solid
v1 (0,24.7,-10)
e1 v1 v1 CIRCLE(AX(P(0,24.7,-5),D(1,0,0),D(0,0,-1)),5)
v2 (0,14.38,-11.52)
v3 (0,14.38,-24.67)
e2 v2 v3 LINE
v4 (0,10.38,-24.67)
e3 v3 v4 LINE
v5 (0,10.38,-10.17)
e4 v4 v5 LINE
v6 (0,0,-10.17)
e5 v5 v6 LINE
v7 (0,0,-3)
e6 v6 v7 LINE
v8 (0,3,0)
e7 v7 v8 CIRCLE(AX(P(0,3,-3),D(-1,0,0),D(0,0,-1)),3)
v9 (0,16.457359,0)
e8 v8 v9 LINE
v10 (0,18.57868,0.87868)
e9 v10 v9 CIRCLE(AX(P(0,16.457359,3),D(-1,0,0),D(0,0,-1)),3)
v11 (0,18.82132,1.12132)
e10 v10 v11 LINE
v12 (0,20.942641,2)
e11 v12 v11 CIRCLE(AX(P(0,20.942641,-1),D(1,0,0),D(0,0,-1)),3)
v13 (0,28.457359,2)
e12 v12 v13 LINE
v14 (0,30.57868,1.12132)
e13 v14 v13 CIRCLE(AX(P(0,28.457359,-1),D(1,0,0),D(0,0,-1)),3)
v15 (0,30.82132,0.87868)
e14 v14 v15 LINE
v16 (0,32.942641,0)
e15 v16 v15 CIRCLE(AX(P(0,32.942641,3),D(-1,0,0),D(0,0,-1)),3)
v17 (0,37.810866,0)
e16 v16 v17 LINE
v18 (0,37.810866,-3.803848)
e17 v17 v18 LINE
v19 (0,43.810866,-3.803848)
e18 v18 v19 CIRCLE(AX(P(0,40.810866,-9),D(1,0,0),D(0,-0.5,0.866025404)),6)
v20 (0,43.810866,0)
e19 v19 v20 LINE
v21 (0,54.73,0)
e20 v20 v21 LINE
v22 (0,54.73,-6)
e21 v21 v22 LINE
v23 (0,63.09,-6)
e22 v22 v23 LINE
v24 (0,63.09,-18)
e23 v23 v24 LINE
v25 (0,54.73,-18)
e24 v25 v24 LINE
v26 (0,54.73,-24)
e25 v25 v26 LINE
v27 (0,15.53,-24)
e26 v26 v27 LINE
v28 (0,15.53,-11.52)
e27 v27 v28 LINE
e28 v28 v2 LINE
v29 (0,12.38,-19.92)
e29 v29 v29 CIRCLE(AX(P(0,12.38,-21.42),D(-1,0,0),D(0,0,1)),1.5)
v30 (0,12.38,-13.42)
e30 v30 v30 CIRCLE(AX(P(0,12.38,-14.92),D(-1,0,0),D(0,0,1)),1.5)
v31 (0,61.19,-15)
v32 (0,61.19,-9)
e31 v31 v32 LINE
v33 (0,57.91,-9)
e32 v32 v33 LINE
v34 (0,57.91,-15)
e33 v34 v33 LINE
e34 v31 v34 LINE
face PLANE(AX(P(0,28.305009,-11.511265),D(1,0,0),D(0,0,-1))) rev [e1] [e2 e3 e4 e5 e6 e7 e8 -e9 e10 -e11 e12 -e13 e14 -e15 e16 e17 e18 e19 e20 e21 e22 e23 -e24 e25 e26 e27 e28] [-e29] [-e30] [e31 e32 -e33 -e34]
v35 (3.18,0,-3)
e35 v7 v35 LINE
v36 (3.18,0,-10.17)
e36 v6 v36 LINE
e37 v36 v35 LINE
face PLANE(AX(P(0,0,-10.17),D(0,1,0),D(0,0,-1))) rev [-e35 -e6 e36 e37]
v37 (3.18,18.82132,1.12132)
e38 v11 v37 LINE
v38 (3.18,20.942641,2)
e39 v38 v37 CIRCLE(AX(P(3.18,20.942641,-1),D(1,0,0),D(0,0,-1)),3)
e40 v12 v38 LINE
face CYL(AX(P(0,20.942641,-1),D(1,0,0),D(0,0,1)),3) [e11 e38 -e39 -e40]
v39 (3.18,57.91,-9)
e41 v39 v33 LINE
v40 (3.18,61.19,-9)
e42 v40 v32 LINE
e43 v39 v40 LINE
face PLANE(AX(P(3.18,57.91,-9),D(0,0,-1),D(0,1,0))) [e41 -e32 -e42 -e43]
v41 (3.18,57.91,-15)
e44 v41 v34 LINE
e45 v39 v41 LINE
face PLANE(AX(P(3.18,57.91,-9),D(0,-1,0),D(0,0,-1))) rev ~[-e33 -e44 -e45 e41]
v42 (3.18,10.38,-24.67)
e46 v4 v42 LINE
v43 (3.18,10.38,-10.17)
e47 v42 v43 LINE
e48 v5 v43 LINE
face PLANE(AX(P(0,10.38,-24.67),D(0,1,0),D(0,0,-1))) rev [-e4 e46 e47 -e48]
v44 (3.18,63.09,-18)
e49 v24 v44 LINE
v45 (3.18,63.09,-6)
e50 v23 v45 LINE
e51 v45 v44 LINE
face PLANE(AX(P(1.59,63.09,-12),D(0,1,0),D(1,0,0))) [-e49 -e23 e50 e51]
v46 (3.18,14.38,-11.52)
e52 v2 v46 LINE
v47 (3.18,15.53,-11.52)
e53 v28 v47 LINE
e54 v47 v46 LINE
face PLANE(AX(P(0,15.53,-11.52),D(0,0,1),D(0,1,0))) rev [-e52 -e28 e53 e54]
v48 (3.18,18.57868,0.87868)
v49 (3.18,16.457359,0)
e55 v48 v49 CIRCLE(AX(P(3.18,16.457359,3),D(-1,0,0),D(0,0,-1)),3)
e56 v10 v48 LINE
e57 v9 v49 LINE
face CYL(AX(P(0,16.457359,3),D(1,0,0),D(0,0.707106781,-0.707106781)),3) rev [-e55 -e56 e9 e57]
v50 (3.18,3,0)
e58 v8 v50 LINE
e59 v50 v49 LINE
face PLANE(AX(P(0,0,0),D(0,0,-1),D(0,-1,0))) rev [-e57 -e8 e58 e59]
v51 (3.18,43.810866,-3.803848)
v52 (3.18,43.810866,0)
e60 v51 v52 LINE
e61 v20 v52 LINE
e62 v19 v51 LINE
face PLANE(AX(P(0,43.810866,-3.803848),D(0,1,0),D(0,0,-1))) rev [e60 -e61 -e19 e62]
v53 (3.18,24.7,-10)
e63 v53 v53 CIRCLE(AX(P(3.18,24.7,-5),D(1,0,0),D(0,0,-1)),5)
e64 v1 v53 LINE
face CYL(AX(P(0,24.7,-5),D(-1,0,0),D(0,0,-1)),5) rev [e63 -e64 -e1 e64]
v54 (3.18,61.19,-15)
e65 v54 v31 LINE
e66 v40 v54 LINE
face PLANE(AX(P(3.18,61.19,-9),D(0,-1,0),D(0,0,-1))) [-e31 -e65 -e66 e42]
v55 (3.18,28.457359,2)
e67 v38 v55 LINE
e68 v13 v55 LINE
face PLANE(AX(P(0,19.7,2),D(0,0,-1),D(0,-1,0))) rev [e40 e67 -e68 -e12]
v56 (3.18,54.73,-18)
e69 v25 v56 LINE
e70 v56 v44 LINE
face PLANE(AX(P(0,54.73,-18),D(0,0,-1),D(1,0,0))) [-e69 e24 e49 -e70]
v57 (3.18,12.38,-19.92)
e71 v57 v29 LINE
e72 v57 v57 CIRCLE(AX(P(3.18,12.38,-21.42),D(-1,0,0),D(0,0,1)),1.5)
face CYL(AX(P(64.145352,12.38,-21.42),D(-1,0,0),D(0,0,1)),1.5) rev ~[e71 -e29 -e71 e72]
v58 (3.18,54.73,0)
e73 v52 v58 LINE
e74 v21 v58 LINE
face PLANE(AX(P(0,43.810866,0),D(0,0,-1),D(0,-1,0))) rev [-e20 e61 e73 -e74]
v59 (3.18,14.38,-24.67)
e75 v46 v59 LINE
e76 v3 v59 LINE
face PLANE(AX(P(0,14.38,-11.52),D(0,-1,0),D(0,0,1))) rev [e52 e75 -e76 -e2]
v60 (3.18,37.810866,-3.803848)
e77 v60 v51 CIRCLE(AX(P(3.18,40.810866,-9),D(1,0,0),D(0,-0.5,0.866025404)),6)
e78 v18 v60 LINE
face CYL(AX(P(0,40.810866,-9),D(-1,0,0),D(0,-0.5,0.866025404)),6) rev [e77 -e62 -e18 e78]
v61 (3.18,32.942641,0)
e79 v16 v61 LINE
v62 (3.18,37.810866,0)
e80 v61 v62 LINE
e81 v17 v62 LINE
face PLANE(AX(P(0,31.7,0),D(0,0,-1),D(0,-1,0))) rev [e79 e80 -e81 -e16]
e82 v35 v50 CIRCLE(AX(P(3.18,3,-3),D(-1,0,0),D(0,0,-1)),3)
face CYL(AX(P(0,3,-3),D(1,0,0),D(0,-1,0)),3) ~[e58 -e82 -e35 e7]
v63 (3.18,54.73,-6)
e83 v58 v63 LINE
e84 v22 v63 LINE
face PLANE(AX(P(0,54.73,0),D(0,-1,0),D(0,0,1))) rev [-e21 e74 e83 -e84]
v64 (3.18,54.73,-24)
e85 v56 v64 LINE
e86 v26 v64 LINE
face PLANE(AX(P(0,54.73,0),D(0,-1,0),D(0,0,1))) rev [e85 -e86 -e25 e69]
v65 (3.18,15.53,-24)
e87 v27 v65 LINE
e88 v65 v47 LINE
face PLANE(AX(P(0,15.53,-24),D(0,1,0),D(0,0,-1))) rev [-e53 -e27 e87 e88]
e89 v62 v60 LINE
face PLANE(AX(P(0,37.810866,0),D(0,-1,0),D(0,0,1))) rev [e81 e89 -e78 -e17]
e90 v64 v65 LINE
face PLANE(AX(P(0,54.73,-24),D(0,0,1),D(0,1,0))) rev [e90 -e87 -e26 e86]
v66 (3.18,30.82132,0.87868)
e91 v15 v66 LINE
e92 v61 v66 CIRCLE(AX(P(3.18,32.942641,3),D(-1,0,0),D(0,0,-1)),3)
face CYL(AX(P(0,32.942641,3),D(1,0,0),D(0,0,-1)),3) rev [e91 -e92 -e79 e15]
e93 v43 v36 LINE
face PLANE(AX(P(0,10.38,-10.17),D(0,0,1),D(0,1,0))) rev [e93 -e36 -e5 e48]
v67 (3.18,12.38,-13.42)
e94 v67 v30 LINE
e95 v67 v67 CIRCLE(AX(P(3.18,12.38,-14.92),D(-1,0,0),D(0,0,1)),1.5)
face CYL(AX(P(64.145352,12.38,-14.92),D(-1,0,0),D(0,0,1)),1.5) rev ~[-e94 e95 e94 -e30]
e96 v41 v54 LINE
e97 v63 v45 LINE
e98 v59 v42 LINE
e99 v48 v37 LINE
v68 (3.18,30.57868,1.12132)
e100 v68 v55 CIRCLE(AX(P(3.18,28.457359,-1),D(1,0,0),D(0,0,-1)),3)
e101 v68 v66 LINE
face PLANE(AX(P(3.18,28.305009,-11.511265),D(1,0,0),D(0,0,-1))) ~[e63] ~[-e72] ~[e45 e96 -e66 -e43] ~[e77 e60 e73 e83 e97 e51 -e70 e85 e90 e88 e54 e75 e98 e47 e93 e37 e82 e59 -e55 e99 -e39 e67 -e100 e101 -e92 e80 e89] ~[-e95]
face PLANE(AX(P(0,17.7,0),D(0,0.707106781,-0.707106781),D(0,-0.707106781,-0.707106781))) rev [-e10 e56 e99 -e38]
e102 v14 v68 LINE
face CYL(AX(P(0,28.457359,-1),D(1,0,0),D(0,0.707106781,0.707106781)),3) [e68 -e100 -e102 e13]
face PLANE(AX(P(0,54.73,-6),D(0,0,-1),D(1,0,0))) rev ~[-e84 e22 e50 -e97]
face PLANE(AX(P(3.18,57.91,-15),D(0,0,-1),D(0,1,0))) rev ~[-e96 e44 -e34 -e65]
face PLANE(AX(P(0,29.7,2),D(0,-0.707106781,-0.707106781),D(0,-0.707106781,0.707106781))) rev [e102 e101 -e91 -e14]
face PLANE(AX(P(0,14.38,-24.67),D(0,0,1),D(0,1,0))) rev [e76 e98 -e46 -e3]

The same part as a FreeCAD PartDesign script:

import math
import FreeCAD as App
import Part
import Sketcher


def edges_at(feature, points):
    """Names of the edges that pass closest to the given points."""
    edges = feature.Shape.Edges
    near = lambda p: min(range(len(edges)), key=lambda i: edges[i].distToShape(Part.Vertex(*p))[0])
    return sorted({f"Edge{near(p) + 1}" for p in points})

doc = App.newDocument("Part")
body = doc.addObject("PartDesign::Body", "Body")

# Sketch on YZ plane
sketch1 = body.newObject("Sketcher::SketchObject", "Sketch")
sketch1.AttachmentSupport = (doc.getObject("YZ_Plane"), [""])
sketch1.MapMode = "FlatFace"
sketch1.addGeometry([
    Part.LineSegment(App.Vector(54.73, -24, 0), App.Vector(54.73, 0, 0)),  # 0
    Part.LineSegment(App.Vector(54.73, 0, 0), App.Vector(43.810866, 0, 0)),  # 1
    Part.LineSegment(App.Vector(43.810866, 0, 0), App.Vector(43.810866, -3.803848, 0)),  # 2
    Part.ArcOfCircle(Part.Circle(App.Vector(40.810866, -9, 0), App.Vector(0, 0, 1), 6), math.radians(120), math.radians(420)),  # 3
    Part.LineSegment(App.Vector(37.810866, -3.803848, 0), App.Vector(37.810866, 0, 0)),  # 4
    Part.LineSegment(App.Vector(37.810866, 0, 0), App.Vector(31.7, 0, 0)),  # 5
    Part.LineSegment(App.Vector(31.7, 0, 0), App.Vector(29.7, 2, 0)),  # 6
    Part.LineSegment(App.Vector(29.7, 2, 0), App.Vector(19.7, 2, 0)),  # 7
    Part.LineSegment(App.Vector(19.7, 2, 0), App.Vector(17.7, 0, 0)),  # 8
    Part.LineSegment(App.Vector(17.7, 0, 0), App.Vector(0, 0, 0)),  # 9
    Part.LineSegment(App.Vector(0, 0, 0), App.Vector(0, -10.17, 0)),  # 10
    Part.LineSegment(App.Vector(0, -10.17, 0), App.Vector(10.38, -10.17, 0)),  # 11
    Part.LineSegment(App.Vector(10.38, -10.17, 0), App.Vector(10.38, -24.67, 0)),  # 12
    Part.LineSegment(App.Vector(10.38, -24.67, 0), App.Vector(14.38, -24.67, 0)),  # 13
    Part.LineSegment(App.Vector(14.38, -24.67, 0), App.Vector(14.38, -11.52, 0)),  # 14
    Part.LineSegment(App.Vector(14.38, -11.52, 0), App.Vector(15.53, -11.52, 0)),  # 15
    Part.LineSegment(App.Vector(15.53, -11.52, 0), App.Vector(15.53, -24, 0)),  # 16
    Part.LineSegment(App.Vector(15.53, -24, 0), App.Vector(54.73, -24, 0)),  # 17
], False)
sketch1.addConstraint([
    Sketcher.Constraint("Coincident", 0, 2, 1, 1),
    Sketcher.Constraint("Coincident", 1, 2, 2, 1),
    Sketcher.Constraint("Coincident", 2, 2, 3, 2),
    Sketcher.Constraint("Coincident", 3, 1, 4, 1),
    Sketcher.Constraint("Coincident", 4, 2, 5, 1),
    Sketcher.Constraint("Coincident", 5, 2, 6, 1),
    Sketcher.Constraint("Coincident", 6, 2, 7, 1),
    Sketcher.Constraint("Coincident", 7, 2, 8, 1),
    Sketcher.Constraint("Coincident", 8, 2, 9, 1),
    Sketcher.Constraint("Coincident", 9, 2, 10, 1),
    Sketcher.Constraint("Coincident", 10, 2, 11, 1),
    Sketcher.Constraint("Coincident", 11, 2, 12, 1),
    Sketcher.Constraint("Coincident", 12, 2, 13, 1),
    Sketcher.Constraint("Coincident", 13, 2, 14, 1),
    Sketcher.Constraint("Coincident", 14, 2, 15, 1),
    Sketcher.Constraint("Coincident", 15, 2, 16, 1),
    Sketcher.Constraint("Coincident", 16, 2, 17, 1),
    Sketcher.Constraint("Coincident", 17, 2, 0, 1),
    Sketcher.Constraint("Vertical", 0),
    Sketcher.Constraint("Horizontal", 1),
    Sketcher.Constraint("Vertical", 2),
    Sketcher.Constraint("Vertical", 4),
    Sketcher.Constraint("Horizontal", 5),
    Sketcher.Constraint("Horizontal", 7),
    Sketcher.Constraint("Horizontal", 9),
    Sketcher.Constraint("Vertical", 10),
    Sketcher.Constraint("Horizontal", 11),
    Sketcher.Constraint("Vertical", 12),
    Sketcher.Constraint("Horizontal", 13),
    Sketcher.Constraint("Vertical", 14),
    Sketcher.Constraint("Horizontal", 15),
    Sketcher.Constraint("Vertical", 16),
    Sketcher.Constraint("Horizontal", 17),
    Sketcher.Constraint("Coincident", 9, 2, -1, 1),
    Sketcher.Constraint("PointOnObject", 0, 2, -1),
    Sketcher.Constraint("PointOnObject", 4, 2, -1),
    Sketcher.Constraint("Perpendicular", 6, 8),
    Sketcher.Constraint("Horizontal", 2, 2, 3, 1),
    Sketcher.Constraint("Equal", 6, 8),
    Sketcher.Constraint("Radius", 3, 6.0),
    Sketcher.Constraint("DistanceX", 7, 2, 7, 1, 10.0),
    Sketcher.Constraint("DistanceX", 13, 1, 13, 2, 4.0),
    Sketcher.Constraint("DistanceY", 0, 1, 0, 2, 24.0),
    Sketcher.Constraint("DistanceX", 9, 2, 9, 1, 17.7),
    Sketcher.Constraint("DistanceX", 17, 1, 17, 2, 39.2),
    Sketcher.Constraint("DistanceY", 12, 2, 12, 1, 14.5),
    Sketcher.Constraint("DistanceY", 3, 3, -1, 1, 9.0),
    Sketcher.Constraint("DistanceY", -1, 1, 6, 2, 2.0),
    Sketcher.Constraint("DistanceX", 3, 3, 1, 2, 3.0),
    Sketcher.Constraint("DistanceX", 11, 1, 11, 2, 10.38),
    Sketcher.Constraint("DistanceX", 15, 1, 15, 2, 1.15),
    Sketcher.Constraint("DistanceY", 10, 2, 10, 1, 10.17),
    Sketcher.Constraint("DistanceY", 14, 1, 14, 2, 13.15),
    Sketcher.Constraint("DistanceX", 1, 2, 1, 1, 10.919134),
])
pad1 = body.newObject("PartDesign::Pad", "Pad")
pad1.Profile = sketch1
pad1.Length = 3.18
pad1.Reversed = True

# Sketch on YZ plane
sketch2 = body.newObject("Sketcher::SketchObject", "Sketch001")
sketch2.AttachmentSupport = (doc.getObject("YZ_Plane"), [""])
sketch2.MapMode = "FlatFace"
sketch2.addGeometry([
    Part.LineSegment(App.Vector(61.827, 9.097, 0), App.Vector(-7.097, 9.097, 0)),  # 0
    Part.LineSegment(App.Vector(-7.097, 9.097, 0), App.Vector(-7.097, -31.767, 0)),  # 1
    Part.LineSegment(App.Vector(-7.097, -31.767, 0), App.Vector(61.827, -31.767, 0)),  # 2
    Part.LineSegment(App.Vector(61.827, -31.767, 0), App.Vector(61.827, 9.097, 0)),  # 3
    Part.LineSegment(App.Vector(43.810866, 0, 0), App.Vector(54.73, 0, 0)),  # 4
    Part.LineSegment(App.Vector(54.73, 0, 0), App.Vector(54.73, -24, 0)),  # 5
    Part.LineSegment(App.Vector(54.73, -24, 0), App.Vector(15.53, -24, 0)),  # 6
    Part.LineSegment(App.Vector(15.53, -24, 0), App.Vector(15.53, -11.52, 0)),  # 7
    Part.LineSegment(App.Vector(15.53, -11.52, 0), App.Vector(14.38, -11.52, 0)),  # 8
    Part.LineSegment(App.Vector(14.38, -11.52, 0), App.Vector(14.38, -24.67, 0)),  # 9
    Part.LineSegment(App.Vector(14.38, -24.67, 0), App.Vector(10.38, -24.67, 0)),  # 10
    Part.LineSegment(App.Vector(10.38, -24.67, 0), App.Vector(10.38, -10.17, 0)),  # 11
    Part.LineSegment(App.Vector(10.38, -10.17, 0), App.Vector(0, -10.17, 0)),  # 12
    Part.LineSegment(App.Vector(0, -10.17, 0), App.Vector(0, 0, 0)),  # 13
    Part.LineSegment(App.Vector(0, 0, 0), App.Vector(17.7, 0, 0)),  # 14
    Part.LineSegment(App.Vector(17.7, 0, 0), App.Vector(19.7, 2, 0)),  # 15
    Part.LineSegment(App.Vector(19.7, 2, 0), App.Vector(29.7, 2, 0)),  # 16
    Part.LineSegment(App.Vector(29.7, 2, 0), App.Vector(31.7, 0, 0)),  # 17
    Part.LineSegment(App.Vector(31.7, 0, 0), App.Vector(37.810866, 0, 0)),  # 18
    Part.LineSegment(App.Vector(37.810866, 0, 0), App.Vector(37.810866, -3.803848, 0)),  # 19
    Part.ArcOfCircle(Part.Circle(App.Vector(40.810866, -9, 0), App.Vector(0, 0, 1), 6), math.radians(120), math.radians(420)),  # 20
    Part.LineSegment(App.Vector(43.810866, -3.803848, 0), App.Vector(43.810866, 0, 0)),  # 21
    Part.Circle(App.Vector(24.7, -5, 0), App.Vector(0, 0, 1), 5),  # 22
], False)
sketch2.addConstraint([
    Sketcher.Constraint("Coincident", 0, 2, 1, 1),
    Sketcher.Constraint("Coincident", 1, 2, 2, 1),
    Sketcher.Constraint("Coincident", 2, 2, 3, 1),
    Sketcher.Constraint("Coincident", 3, 2, 0, 1),
    Sketcher.Constraint("Coincident", 4, 2, 5, 1),
    Sketcher.Constraint("Coincident", 5, 2, 6, 1),
    Sketcher.Constraint("Coincident", 6, 2, 7, 1),
    Sketcher.Constraint("Coincident", 7, 2, 8, 1),
    Sketcher.Constraint("Coincident", 8, 2, 9, 1),
    Sketcher.Constraint("Coincident", 9, 2, 10, 1),
    Sketcher.Constraint("Coincident", 10, 2, 11, 1),
    Sketcher.Constraint("Coincident", 11, 2, 12, 1),
    Sketcher.Constraint("Coincident", 12, 2, 13, 1),
    Sketcher.Constraint("Coincident", 13, 2, 14, 1),
    Sketcher.Constraint("Coincident", 14, 2, 15, 1),
    Sketcher.Constraint("Coincident", 15, 2, 16, 1),
    Sketcher.Constraint("Coincident", 16, 2, 17, 1),
    Sketcher.Constraint("Coincident", 17, 2, 18, 1),
    Sketcher.Constraint("Coincident", 18, 2, 19, 1),
    Sketcher.Constraint("Coincident", 19, 2, 20, 1),
    Sketcher.Constraint("Coincident", 20, 2, 21, 1),
    Sketcher.Constraint("Coincident", 21, 2, 4, 1),
    Sketcher.Constraint("Horizontal", 0),
    Sketcher.Constraint("Vertical", 1),
    Sketcher.Constraint("Horizontal", 2),
    Sketcher.Constraint("Vertical", 3),
    Sketcher.Constraint("Horizontal", 4),
    Sketcher.Constraint("Vertical", 5),
    Sketcher.Constraint("Horizontal", 6),
    Sketcher.Constraint("Vertical", 7),
    Sketcher.Constraint("Horizontal", 8),
    Sketcher.Constraint("Vertical", 9),
    Sketcher.Constraint("Horizontal", 10),
    Sketcher.Constraint("Vertical", 11),
    Sketcher.Constraint("Horizontal", 12),
    Sketcher.Constraint("Vertical", 13),
    Sketcher.Constraint("Horizontal", 14),
    Sketcher.Constraint("Horizontal", 16),
    Sketcher.Constraint("Horizontal", 18),
    Sketcher.Constraint("Vertical", 19),
    Sketcher.Constraint("Vertical", 21),
    Sketcher.Constraint("Coincident", 13, 2, -1, 1),
    Sketcher.Constraint("PointOnObject", 4, 2, -1),
    Sketcher.Constraint("PointOnObject", 17, 2, -1),
    Sketcher.Constraint("Perpendicular", 15, 17),
    Sketcher.Constraint("Horizontal", 19, 2, 20, 2),
    Sketcher.Constraint("Equal", 15, 17),
    Sketcher.Constraint("Diameter", 22, 10.0),
    Sketcher.Constraint("Radius", 20, 6.0),
    Sketcher.Constraint("DistanceX", 10, 2, 10, 1, 4.0),
    Sketcher.Constraint("DistanceX", 16, 1, 16, 2, 10.0),
    Sketcher.Constraint("DistanceY", 5, 2, 5, 1, 24.0),
    Sketcher.Constraint("DistanceX", 6, 2, 6, 1, 39.2),
    Sketcher.Constraint("DistanceX", 14, 1, 14, 2, 17.7),
    Sketcher.Constraint("DistanceY", 11, 1, 11, 2, 14.5),
    Sketcher.Constraint("DistanceY", 20, 3, -1, 1, 9.0),
    Sketcher.Constraint("DistanceY", 22, 3, -1, 1, 5.0),
    Sketcher.Constraint("DistanceY", -1, 1, 15, 2, 2.0),
    Sketcher.Constraint("DistanceX", 14, 2, 22, 3, 7.0),
    Sketcher.Constraint("DistanceX", 18, 2, 20, 3, 3.0),
    Sketcher.Constraint("DistanceX", 8, 2, 8, 1, 1.15),
    Sketcher.Constraint("DistanceX", 12, 2, 12, 1, 10.38),
    Sketcher.Constraint("DistanceY", 7, 1, 7, 2, 12.48),
    Sketcher.Constraint("DistanceY", 9, 2, 9, 1, 13.15),
    Sketcher.Constraint("DistanceX", 0, 2, 0, 1, 68.924),
    Sketcher.Constraint("DistanceY", 1, 2, 1, 1, 40.864),
    Sketcher.Constraint("DistanceX", 0, 2, -1, 1, 7.097),
    Sketcher.Constraint("DistanceY", -1, 1, 0, 2, 9.097),
    Sketcher.Constraint("DistanceX", 4, 1, 4, 2, 10.919134),
])
pocket1 = body.newObject("PartDesign::Pocket", "Pocket")
pocket1.Profile = sketch2
pocket1.Length = 3.18
doc.recompute()

fillet = body.newObject("PartDesign::Fillet", "Fillet")
fillet.Base = (pocket1, edges_at(pocket1, [
    (-1.59, 31.7, 0),
    (-1.59, 29.7, 2),
    (-1.59, 19.7, 2),
    (-1.59, 17.7, 0),
    (-1.59, 0, 0),
]))
fillet.Radius = 3
body2 = doc.addObject("PartDesign::Body", "Body001")
doc.recompute()

mirroring = doc.addObject("Part::Mirroring", "Mirroring")
mirroring.Source = body
mirroring.Base = App.Vector(0, 40.810866, -9)
mirroring.Normal = App.Vector(1, 0, 0)
body2.BaseFeature = mirroring
doc.recompute()

# Sketch on YZ plane
sketch3 = body2.newObject("Sketcher::SketchObject", "Sketch002")
sketch3.AttachmentSupport = (doc.getObject("YZ_Plane001"), [""])
sketch3.MapMode = "FlatFace"
sketch3.AttachmentOffset = App.Placement(App.Vector(0, 0, 3.18), App.Rotation())
sketch3.addGeometry([
    Part.Circle(App.Vector(12.38, -21.42, 0), App.Vector(0, 0, 1), 1.5),
    Part.Circle(App.Vector(12.38, -14.92, 0), App.Vector(0, 0, 1), 1.5),
], False)
sketch3.addConstraint([
    Sketcher.Constraint("Equal", 0, 1),
    Sketcher.Constraint("Vertical", 0, 3, 1, 3),
    Sketcher.Constraint("Diameter", 0, 3.0),
    Sketcher.Constraint("DistanceY", 0, 3, 1, 3, 6.5),
    Sketcher.Constraint("DistanceX", -1, 1, 0, 3, 12.38),
    Sketcher.Constraint("DistanceY", 0, 3, -1, 1, 21.42),
])
doc.recompute()
hole = body2.newObject("PartDesign::Hole", "Hole")
hole.Profile = sketch3
hole.ThreadType = "None"
hole.Diameter = 3
hole.DepthType = "ThroughAll"

# Sketch on XZ plane
sketch4 = body2.newObject("Sketcher::SketchObject", "Sketch003")
sketch4.AttachmentSupport = (doc.getObject("XZ_Plane001"), [""])
sketch4.MapMode = "FlatFace"
sketch4.AttachmentOffset = App.Placement(App.Vector(0, 0, -54.73), App.Rotation())
sketch4.addGeometry([
    Part.LineSegment(App.Vector(0, -18, 0), App.Vector(0, -6, 0)),
    Part.LineSegment(App.Vector(0, -6, 0), App.Vector(3.18, -6, 0)),
    Part.LineSegment(App.Vector(3.18, -6, 0), App.Vector(3.18, -18, 0)),
    Part.LineSegment(App.Vector(3.18, -18, 0), App.Vector(0, -18, 0)),
], False)
sketch4.addConstraint([
    Sketcher.Constraint("Coincident", 0, 2, 1, 1),
    Sketcher.Constraint("Coincident", 1, 2, 2, 1),
    Sketcher.Constraint("Coincident", 2, 2, 3, 1),
    Sketcher.Constraint("Coincident", 3, 2, 0, 1),
    Sketcher.Constraint("Vertical", 0),
    Sketcher.Constraint("Horizontal", 1),
    Sketcher.Constraint("Vertical", 2),
    Sketcher.Constraint("Horizontal", 3),
    Sketcher.Constraint("PointOnObject", 0, 2, -2),
    Sketcher.Constraint("DistanceY", 0, 1, 0, 2, 12.0),
    Sketcher.Constraint("DistanceY", 0, 2, -1, 1, 6.0),
    Sketcher.Constraint("DistanceX", 1, 1, 1, 2, 3.18),
])
pad2 = body2.newObject("PartDesign::Pad", "Pad001")
pad2.Profile = sketch4
pad2.Length = 8.36
pad2.Reversed = True

# Sketch on YZ plane
sketch5 = body2.newObject("Sketcher::SketchObject", "Sketch004")
sketch5.AttachmentSupport = (doc.getObject("YZ_Plane001"), [""])
sketch5.MapMode = "FlatFace"
sketch5.AttachmentOffset = App.Placement(App.Vector(0, 0, 3.18), App.Rotation())
sketch5.addGeometry([
    Part.LineSegment(App.Vector(61.19, -9, 0), App.Vector(57.91, -9, 0)),
    Part.LineSegment(App.Vector(57.91, -9, 0), App.Vector(57.91, -15, 0)),
    Part.LineSegment(App.Vector(57.91, -15, 0), App.Vector(61.19, -15, 0)),
    Part.LineSegment(App.Vector(61.19, -15, 0), App.Vector(61.19, -9, 0)),
], False)
sketch5.addConstraint([
    Sketcher.Constraint("Coincident", 0, 2, 1, 1),
    Sketcher.Constraint("Coincident", 1, 2, 2, 1),
    Sketcher.Constraint("Coincident", 2, 2, 3, 1),
    Sketcher.Constraint("Coincident", 3, 2, 0, 1),
    Sketcher.Constraint("Horizontal", 0),
    Sketcher.Constraint("Vertical", 1),
    Sketcher.Constraint("Horizontal", 2),
    Sketcher.Constraint("Vertical", 3),
    Sketcher.Constraint("DistanceY", 1, 2, 1, 1, 6.0),
    Sketcher.Constraint("DistanceY", 0, 2, -1, 1, 9.0),
    Sketcher.Constraint("DistanceX", 0, 2, 0, 1, 3.28),
    Sketcher.Constraint("DistanceX", -1, 1, 0, 2, 57.91),
])
pocket2 = body2.newObject("PartDesign::Pocket", "Pocket001")
pocket2.Profile = sketch5
pocket2.Type = "ThroughAll"
body.Visibility = False
mirroring.Visibility = False

doc.recompute()
